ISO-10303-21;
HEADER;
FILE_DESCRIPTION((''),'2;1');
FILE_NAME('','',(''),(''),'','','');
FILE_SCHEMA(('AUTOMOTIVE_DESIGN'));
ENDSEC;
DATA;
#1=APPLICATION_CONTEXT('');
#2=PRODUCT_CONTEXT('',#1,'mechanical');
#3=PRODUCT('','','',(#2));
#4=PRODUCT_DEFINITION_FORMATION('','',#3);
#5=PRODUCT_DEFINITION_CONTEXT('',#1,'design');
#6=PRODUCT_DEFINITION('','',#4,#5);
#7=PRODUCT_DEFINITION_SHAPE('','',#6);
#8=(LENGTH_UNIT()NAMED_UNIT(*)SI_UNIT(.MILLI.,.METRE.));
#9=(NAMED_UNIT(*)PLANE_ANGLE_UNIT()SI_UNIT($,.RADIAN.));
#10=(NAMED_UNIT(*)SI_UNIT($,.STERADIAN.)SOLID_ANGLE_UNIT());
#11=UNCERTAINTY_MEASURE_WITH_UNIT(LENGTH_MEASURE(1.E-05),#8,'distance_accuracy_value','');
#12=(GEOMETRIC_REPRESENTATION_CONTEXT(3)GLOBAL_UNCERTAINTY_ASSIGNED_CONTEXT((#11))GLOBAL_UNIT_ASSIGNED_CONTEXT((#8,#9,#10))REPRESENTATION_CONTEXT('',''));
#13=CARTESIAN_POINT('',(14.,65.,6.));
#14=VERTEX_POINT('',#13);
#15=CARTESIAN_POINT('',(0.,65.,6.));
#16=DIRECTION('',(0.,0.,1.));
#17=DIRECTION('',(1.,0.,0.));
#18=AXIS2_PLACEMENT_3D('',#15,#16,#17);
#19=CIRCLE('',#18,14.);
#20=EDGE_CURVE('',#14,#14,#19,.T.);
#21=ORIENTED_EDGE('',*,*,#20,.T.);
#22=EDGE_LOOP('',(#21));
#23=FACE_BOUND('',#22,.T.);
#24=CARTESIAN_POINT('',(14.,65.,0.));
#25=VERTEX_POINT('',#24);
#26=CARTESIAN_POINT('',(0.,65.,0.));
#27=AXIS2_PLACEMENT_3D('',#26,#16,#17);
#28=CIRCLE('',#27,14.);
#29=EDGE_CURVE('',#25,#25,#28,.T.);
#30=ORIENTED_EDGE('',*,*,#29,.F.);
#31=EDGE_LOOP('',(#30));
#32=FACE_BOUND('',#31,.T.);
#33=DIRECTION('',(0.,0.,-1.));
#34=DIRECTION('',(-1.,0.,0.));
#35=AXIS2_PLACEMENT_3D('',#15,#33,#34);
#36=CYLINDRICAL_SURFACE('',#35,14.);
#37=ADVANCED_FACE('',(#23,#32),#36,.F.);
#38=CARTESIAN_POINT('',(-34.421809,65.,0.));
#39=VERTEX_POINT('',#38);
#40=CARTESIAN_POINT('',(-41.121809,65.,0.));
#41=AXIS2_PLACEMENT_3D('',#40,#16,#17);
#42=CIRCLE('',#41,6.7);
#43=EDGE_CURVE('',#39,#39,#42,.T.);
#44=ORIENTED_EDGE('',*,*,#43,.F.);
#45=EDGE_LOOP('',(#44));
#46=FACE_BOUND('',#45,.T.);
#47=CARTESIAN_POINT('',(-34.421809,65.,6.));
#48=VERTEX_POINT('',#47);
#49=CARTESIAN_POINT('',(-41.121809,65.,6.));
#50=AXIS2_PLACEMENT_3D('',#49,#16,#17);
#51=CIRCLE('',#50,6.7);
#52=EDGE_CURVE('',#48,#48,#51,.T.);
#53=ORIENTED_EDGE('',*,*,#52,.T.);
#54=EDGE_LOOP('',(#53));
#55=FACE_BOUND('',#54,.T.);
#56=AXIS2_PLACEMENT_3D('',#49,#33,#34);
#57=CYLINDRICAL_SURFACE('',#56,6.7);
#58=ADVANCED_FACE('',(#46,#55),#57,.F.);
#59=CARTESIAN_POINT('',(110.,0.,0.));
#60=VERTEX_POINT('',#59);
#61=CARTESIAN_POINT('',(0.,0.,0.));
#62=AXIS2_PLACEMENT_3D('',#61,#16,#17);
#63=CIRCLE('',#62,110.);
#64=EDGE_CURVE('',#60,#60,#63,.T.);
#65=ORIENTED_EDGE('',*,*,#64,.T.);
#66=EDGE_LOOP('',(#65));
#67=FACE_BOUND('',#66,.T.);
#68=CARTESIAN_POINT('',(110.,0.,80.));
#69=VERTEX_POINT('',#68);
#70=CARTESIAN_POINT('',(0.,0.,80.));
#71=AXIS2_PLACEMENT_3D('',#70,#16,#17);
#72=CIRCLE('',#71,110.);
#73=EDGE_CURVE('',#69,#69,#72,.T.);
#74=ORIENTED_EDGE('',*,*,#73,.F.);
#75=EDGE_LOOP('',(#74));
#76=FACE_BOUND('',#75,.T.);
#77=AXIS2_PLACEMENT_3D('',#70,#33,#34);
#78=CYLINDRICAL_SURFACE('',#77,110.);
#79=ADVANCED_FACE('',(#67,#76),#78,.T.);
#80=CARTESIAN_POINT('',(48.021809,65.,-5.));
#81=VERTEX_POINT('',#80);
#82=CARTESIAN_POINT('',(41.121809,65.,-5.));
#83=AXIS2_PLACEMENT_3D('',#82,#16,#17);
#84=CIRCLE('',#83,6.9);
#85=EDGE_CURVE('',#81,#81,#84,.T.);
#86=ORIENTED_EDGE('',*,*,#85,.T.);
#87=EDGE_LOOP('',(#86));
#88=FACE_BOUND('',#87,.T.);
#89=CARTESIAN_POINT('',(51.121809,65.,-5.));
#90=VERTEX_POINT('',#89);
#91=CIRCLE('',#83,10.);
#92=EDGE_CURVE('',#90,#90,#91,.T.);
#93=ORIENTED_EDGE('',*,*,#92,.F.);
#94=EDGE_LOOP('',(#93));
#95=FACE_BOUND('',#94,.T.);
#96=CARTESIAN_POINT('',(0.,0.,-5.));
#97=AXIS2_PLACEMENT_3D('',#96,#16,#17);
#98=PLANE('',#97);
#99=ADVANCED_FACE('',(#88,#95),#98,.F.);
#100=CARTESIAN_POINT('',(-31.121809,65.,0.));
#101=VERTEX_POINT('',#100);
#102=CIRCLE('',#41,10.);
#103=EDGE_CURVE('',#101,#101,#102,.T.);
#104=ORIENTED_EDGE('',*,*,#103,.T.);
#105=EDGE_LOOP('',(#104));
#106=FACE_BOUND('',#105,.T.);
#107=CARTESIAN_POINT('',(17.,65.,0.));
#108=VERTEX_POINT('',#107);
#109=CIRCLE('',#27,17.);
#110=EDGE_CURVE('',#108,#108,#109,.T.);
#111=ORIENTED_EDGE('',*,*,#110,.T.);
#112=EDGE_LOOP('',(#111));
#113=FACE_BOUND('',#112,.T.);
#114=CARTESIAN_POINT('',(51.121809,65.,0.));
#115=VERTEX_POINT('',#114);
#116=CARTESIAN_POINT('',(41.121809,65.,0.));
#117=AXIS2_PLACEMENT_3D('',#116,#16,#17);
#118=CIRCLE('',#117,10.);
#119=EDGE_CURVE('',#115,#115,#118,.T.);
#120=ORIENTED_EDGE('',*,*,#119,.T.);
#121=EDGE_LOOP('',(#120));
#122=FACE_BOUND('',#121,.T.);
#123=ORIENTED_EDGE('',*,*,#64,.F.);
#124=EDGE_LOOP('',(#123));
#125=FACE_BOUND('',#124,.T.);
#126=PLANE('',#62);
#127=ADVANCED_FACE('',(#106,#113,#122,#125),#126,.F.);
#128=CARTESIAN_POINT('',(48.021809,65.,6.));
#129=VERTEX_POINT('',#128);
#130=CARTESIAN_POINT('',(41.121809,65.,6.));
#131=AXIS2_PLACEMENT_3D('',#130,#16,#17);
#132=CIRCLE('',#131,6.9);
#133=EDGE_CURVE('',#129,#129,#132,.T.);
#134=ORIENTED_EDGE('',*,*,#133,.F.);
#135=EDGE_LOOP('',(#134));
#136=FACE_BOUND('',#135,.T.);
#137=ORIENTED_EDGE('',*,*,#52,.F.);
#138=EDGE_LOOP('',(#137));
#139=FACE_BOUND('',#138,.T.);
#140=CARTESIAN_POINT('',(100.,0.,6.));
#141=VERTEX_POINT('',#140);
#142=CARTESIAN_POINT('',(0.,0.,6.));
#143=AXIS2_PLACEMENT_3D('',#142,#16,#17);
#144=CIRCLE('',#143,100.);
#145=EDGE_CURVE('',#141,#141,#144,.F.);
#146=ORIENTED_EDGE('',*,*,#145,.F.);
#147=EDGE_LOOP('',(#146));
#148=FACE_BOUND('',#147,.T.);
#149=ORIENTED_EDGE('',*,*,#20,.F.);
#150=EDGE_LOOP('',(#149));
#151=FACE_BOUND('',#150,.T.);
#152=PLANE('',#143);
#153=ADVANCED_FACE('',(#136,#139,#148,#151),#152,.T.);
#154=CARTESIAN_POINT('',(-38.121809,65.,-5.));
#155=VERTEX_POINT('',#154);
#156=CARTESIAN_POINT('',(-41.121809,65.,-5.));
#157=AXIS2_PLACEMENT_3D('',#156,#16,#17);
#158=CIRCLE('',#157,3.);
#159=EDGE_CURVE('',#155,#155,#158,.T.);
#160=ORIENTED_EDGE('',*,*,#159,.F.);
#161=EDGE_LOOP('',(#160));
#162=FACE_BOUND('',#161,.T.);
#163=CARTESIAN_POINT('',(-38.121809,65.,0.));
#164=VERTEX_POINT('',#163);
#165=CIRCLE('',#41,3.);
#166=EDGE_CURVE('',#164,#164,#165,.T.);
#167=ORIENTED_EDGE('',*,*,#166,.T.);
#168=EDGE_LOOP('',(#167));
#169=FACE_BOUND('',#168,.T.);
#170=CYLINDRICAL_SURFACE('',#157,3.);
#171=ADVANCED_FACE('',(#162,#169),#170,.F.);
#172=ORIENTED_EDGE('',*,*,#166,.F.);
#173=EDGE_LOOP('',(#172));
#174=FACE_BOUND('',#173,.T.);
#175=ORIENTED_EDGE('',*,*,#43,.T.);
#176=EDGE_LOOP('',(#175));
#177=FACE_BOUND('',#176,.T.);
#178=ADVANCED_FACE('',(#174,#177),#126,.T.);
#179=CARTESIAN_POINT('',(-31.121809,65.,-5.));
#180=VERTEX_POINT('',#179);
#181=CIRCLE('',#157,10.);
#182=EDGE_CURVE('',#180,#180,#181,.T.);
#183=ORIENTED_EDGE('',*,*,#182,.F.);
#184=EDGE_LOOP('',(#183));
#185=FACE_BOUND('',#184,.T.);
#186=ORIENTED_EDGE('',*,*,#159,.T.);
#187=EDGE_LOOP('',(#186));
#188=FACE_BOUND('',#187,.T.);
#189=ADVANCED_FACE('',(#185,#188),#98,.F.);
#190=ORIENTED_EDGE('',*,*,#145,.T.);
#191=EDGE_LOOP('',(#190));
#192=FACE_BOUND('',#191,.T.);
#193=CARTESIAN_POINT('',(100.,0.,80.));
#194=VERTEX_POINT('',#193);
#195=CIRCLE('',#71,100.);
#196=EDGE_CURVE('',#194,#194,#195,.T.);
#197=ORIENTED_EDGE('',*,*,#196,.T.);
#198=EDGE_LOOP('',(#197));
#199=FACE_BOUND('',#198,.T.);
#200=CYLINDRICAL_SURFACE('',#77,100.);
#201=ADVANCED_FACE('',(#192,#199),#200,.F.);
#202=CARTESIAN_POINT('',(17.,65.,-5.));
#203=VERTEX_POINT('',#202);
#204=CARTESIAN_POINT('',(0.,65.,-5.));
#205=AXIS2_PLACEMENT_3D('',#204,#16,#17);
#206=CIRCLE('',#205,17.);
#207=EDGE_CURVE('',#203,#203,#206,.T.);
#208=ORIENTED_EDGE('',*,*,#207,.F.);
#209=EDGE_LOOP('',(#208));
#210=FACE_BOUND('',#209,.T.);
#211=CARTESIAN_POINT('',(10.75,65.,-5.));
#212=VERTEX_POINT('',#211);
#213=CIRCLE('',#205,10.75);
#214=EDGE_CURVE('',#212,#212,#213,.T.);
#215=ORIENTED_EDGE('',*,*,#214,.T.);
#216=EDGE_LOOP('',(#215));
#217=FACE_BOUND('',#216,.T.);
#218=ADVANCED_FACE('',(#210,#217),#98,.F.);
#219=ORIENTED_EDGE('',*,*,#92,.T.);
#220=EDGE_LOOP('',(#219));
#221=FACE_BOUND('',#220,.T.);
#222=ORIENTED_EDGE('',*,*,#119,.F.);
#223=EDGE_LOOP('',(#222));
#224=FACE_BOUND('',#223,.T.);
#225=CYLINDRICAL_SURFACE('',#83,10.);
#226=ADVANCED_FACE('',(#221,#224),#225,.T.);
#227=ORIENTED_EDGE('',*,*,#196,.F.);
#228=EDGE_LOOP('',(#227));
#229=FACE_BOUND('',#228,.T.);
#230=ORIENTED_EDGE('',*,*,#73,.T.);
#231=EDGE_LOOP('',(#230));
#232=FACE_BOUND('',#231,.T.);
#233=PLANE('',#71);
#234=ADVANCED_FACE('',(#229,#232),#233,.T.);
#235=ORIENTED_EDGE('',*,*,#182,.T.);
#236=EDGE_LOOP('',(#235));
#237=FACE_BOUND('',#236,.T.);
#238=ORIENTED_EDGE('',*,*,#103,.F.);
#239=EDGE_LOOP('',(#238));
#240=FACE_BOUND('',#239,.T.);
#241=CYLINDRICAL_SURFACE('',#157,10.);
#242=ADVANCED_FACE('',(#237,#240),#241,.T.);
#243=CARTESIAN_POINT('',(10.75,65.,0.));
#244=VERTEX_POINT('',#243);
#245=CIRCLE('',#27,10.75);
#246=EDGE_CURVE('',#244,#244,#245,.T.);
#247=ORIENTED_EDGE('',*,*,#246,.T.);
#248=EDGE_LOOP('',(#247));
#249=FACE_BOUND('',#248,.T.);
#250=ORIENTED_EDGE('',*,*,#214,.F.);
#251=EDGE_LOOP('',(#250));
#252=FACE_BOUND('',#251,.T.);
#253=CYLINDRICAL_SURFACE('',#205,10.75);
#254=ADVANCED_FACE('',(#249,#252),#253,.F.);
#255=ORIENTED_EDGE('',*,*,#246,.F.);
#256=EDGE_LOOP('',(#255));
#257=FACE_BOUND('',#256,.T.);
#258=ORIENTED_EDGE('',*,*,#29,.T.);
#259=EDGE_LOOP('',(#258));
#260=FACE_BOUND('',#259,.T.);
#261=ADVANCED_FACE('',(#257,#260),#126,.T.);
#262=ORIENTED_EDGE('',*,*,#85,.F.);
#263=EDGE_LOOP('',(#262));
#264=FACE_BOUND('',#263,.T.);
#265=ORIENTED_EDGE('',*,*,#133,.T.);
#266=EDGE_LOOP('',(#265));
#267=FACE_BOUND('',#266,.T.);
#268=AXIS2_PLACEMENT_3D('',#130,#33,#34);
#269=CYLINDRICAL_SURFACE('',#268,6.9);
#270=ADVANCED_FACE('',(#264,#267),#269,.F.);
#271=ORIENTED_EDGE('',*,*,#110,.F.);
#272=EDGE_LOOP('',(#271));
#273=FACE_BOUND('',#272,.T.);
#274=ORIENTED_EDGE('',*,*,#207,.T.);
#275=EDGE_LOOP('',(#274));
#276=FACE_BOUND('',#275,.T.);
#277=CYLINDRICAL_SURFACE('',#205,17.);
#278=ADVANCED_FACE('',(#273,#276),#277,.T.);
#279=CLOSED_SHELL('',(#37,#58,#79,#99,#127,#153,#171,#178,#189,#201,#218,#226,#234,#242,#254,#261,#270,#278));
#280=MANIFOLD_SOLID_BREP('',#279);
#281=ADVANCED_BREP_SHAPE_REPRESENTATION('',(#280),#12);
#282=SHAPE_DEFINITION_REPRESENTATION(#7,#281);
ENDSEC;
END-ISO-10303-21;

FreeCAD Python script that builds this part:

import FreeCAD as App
import Part
import Sketcher

V = App.Vector
Q = App.Units.Quantity

doc = App.newDocument("Part")
body = doc.addObject("PartDesign::Body", "Body")

sketch1 = body.newObject("Sketcher::SketchObject", "Sketch")
sketch1.AttachmentSupport = (doc.getObject("XY_Plane"), [""])
sketch1.MapMode = "FlatFace"
sketch1.addGeometry([
    Part.Circle(V(0, 0, 0), V(0, 0, 1), 100),
    Part.Circle(V(-41, 65, 0), V(0, 0, 1), 7),
    Part.Circle(V(0, 65, 0), V(0, 0, 1), 14),
    Part.Circle(V(41, 65, 0), V(0, 0, 1), 7),
], False)
sketch1.addConstraint([
    Sketcher.Constraint("Coincident", 0, 3, -1, 1),
    Sketcher.Constraint("Symmetric", 1, 3, 3, 3, -2),
    Sketcher.Constraint("PointOnObject", 2, 3, -2),
    Sketcher.Constraint("Horizontal", 1, 3, 2, 3),
    Sketcher.Constraint("Diameter", 0, Q("200 mm")),
    Sketcher.Constraint("Diameter", 2, Q("28 mm")),
    Sketcher.Constraint("Diameter", 1, Q("13.4 mm")),
    Sketcher.Constraint("Diameter", 3, Q("13.8 mm")),
    Sketcher.Constraint("DistanceY", -1, 1, 1, 3, Q("65 mm")),
    Sketcher.Constraint("DistanceX", 1, 3, -1, 1, Q("41.121809 mm")),
])
pad1 = body.newObject("PartDesign::Pad", "Pad")
pad1.Profile = sketch1
pad1.Length = 6

sketch2 = body.newObject("Sketcher::SketchObject", "Sketch001")
sketch2.AttachmentSupport = (doc.getObject("XY_Plane"), [""])
sketch2.MapMode = "FlatFace"
sketch2.addGeometry([
    Part.Circle(V(0, 0, 0), V(0, 0, 1), 110),
    Part.Circle(V(0, 0, 0), V(0, 0, 1), 100),
], False)
sketch2.addConstraint([
    Sketcher.Constraint("Coincident", 0, 3, -1, 1),
    Sketcher.Constraint("Coincident", 1, 3, -1, 1),
    Sketcher.Constraint("Diameter", 0, Q("220 mm")),
    Sketcher.Constraint("Diameter", 1, Q("200 mm")),
])
pad2 = body.newObject("PartDesign::Pad", "Pad001")
pad2.Profile = sketch2
pad2.Length = 80

sketch3 = body.newObject("Sketcher::SketchObject", "Sketch002")
sketch3.AttachmentSupport = (doc.getObject("XY_Plane"), [""])
sketch3.MapMode = "FlatFace"
sketch3.AttachmentOffset = App.Placement(V(0, 0, -5), App.Rotation())
sketch3.addGeometry([
    Part.Circle(V(0, 65, 0), V(0, 0, 1), 17),
    Part.Circle(V(0, 65, 0), V(0, 0, 1), 10.8),
    Part.Circle(V(41.1, 65, 0), V(0, 0, 1), 10),
    Part.Circle(V(41.1, 65, 0), V(0, 0, 1), 6.9),
    Part.Circle(V(-41.1, 65, 0), V(0, 0, 1), 10),
    Part.Circle(V(-41.1, 65, 0), V(0, 0, 1), 3),
], False)
sketch3.addConstraint([
    Sketcher.Constraint("Coincident", 1, 3, 0, 3),
    Sketcher.Constraint("Coincident", 3, 3, 2, 3),
    Sketcher.Constraint("Coincident", 5, 3, 4, 3),
    Sketcher.Constraint("Equal", 2, 4),
    Sketcher.Constraint("Symmetric", 2, 3, 4, 3, -2),
    Sketcher.Constraint("PointOnObject", 0, 3, -2),
    Sketcher.Constraint("Horizontal", 1, 3, 2, 3),
    Sketcher.Constraint("Diameter", 0, Q("34 mm")),
    Sketcher.Constraint("Diameter", 2, Q("20 mm")),
    Sketcher.Constraint("Diameter", 5, Q("6 mm")),
    Sketcher.Constraint("Diameter", 1, Q("21.5 mm")),
    Sketcher.Constraint("Diameter", 3, Q("13.8 mm")),
    Sketcher.Constraint("DistanceY", -1, 1, 0, 3, Q("65 mm")),
    Sketcher.Constraint("DistanceX", -1, 1, 2, 3, Q("41.121809 mm")),
])
pad3 = body.newObject("PartDesign::Pad", "Pad002")
pad3.Profile = sketch3
pad3.Length = 5

doc.recompute()
